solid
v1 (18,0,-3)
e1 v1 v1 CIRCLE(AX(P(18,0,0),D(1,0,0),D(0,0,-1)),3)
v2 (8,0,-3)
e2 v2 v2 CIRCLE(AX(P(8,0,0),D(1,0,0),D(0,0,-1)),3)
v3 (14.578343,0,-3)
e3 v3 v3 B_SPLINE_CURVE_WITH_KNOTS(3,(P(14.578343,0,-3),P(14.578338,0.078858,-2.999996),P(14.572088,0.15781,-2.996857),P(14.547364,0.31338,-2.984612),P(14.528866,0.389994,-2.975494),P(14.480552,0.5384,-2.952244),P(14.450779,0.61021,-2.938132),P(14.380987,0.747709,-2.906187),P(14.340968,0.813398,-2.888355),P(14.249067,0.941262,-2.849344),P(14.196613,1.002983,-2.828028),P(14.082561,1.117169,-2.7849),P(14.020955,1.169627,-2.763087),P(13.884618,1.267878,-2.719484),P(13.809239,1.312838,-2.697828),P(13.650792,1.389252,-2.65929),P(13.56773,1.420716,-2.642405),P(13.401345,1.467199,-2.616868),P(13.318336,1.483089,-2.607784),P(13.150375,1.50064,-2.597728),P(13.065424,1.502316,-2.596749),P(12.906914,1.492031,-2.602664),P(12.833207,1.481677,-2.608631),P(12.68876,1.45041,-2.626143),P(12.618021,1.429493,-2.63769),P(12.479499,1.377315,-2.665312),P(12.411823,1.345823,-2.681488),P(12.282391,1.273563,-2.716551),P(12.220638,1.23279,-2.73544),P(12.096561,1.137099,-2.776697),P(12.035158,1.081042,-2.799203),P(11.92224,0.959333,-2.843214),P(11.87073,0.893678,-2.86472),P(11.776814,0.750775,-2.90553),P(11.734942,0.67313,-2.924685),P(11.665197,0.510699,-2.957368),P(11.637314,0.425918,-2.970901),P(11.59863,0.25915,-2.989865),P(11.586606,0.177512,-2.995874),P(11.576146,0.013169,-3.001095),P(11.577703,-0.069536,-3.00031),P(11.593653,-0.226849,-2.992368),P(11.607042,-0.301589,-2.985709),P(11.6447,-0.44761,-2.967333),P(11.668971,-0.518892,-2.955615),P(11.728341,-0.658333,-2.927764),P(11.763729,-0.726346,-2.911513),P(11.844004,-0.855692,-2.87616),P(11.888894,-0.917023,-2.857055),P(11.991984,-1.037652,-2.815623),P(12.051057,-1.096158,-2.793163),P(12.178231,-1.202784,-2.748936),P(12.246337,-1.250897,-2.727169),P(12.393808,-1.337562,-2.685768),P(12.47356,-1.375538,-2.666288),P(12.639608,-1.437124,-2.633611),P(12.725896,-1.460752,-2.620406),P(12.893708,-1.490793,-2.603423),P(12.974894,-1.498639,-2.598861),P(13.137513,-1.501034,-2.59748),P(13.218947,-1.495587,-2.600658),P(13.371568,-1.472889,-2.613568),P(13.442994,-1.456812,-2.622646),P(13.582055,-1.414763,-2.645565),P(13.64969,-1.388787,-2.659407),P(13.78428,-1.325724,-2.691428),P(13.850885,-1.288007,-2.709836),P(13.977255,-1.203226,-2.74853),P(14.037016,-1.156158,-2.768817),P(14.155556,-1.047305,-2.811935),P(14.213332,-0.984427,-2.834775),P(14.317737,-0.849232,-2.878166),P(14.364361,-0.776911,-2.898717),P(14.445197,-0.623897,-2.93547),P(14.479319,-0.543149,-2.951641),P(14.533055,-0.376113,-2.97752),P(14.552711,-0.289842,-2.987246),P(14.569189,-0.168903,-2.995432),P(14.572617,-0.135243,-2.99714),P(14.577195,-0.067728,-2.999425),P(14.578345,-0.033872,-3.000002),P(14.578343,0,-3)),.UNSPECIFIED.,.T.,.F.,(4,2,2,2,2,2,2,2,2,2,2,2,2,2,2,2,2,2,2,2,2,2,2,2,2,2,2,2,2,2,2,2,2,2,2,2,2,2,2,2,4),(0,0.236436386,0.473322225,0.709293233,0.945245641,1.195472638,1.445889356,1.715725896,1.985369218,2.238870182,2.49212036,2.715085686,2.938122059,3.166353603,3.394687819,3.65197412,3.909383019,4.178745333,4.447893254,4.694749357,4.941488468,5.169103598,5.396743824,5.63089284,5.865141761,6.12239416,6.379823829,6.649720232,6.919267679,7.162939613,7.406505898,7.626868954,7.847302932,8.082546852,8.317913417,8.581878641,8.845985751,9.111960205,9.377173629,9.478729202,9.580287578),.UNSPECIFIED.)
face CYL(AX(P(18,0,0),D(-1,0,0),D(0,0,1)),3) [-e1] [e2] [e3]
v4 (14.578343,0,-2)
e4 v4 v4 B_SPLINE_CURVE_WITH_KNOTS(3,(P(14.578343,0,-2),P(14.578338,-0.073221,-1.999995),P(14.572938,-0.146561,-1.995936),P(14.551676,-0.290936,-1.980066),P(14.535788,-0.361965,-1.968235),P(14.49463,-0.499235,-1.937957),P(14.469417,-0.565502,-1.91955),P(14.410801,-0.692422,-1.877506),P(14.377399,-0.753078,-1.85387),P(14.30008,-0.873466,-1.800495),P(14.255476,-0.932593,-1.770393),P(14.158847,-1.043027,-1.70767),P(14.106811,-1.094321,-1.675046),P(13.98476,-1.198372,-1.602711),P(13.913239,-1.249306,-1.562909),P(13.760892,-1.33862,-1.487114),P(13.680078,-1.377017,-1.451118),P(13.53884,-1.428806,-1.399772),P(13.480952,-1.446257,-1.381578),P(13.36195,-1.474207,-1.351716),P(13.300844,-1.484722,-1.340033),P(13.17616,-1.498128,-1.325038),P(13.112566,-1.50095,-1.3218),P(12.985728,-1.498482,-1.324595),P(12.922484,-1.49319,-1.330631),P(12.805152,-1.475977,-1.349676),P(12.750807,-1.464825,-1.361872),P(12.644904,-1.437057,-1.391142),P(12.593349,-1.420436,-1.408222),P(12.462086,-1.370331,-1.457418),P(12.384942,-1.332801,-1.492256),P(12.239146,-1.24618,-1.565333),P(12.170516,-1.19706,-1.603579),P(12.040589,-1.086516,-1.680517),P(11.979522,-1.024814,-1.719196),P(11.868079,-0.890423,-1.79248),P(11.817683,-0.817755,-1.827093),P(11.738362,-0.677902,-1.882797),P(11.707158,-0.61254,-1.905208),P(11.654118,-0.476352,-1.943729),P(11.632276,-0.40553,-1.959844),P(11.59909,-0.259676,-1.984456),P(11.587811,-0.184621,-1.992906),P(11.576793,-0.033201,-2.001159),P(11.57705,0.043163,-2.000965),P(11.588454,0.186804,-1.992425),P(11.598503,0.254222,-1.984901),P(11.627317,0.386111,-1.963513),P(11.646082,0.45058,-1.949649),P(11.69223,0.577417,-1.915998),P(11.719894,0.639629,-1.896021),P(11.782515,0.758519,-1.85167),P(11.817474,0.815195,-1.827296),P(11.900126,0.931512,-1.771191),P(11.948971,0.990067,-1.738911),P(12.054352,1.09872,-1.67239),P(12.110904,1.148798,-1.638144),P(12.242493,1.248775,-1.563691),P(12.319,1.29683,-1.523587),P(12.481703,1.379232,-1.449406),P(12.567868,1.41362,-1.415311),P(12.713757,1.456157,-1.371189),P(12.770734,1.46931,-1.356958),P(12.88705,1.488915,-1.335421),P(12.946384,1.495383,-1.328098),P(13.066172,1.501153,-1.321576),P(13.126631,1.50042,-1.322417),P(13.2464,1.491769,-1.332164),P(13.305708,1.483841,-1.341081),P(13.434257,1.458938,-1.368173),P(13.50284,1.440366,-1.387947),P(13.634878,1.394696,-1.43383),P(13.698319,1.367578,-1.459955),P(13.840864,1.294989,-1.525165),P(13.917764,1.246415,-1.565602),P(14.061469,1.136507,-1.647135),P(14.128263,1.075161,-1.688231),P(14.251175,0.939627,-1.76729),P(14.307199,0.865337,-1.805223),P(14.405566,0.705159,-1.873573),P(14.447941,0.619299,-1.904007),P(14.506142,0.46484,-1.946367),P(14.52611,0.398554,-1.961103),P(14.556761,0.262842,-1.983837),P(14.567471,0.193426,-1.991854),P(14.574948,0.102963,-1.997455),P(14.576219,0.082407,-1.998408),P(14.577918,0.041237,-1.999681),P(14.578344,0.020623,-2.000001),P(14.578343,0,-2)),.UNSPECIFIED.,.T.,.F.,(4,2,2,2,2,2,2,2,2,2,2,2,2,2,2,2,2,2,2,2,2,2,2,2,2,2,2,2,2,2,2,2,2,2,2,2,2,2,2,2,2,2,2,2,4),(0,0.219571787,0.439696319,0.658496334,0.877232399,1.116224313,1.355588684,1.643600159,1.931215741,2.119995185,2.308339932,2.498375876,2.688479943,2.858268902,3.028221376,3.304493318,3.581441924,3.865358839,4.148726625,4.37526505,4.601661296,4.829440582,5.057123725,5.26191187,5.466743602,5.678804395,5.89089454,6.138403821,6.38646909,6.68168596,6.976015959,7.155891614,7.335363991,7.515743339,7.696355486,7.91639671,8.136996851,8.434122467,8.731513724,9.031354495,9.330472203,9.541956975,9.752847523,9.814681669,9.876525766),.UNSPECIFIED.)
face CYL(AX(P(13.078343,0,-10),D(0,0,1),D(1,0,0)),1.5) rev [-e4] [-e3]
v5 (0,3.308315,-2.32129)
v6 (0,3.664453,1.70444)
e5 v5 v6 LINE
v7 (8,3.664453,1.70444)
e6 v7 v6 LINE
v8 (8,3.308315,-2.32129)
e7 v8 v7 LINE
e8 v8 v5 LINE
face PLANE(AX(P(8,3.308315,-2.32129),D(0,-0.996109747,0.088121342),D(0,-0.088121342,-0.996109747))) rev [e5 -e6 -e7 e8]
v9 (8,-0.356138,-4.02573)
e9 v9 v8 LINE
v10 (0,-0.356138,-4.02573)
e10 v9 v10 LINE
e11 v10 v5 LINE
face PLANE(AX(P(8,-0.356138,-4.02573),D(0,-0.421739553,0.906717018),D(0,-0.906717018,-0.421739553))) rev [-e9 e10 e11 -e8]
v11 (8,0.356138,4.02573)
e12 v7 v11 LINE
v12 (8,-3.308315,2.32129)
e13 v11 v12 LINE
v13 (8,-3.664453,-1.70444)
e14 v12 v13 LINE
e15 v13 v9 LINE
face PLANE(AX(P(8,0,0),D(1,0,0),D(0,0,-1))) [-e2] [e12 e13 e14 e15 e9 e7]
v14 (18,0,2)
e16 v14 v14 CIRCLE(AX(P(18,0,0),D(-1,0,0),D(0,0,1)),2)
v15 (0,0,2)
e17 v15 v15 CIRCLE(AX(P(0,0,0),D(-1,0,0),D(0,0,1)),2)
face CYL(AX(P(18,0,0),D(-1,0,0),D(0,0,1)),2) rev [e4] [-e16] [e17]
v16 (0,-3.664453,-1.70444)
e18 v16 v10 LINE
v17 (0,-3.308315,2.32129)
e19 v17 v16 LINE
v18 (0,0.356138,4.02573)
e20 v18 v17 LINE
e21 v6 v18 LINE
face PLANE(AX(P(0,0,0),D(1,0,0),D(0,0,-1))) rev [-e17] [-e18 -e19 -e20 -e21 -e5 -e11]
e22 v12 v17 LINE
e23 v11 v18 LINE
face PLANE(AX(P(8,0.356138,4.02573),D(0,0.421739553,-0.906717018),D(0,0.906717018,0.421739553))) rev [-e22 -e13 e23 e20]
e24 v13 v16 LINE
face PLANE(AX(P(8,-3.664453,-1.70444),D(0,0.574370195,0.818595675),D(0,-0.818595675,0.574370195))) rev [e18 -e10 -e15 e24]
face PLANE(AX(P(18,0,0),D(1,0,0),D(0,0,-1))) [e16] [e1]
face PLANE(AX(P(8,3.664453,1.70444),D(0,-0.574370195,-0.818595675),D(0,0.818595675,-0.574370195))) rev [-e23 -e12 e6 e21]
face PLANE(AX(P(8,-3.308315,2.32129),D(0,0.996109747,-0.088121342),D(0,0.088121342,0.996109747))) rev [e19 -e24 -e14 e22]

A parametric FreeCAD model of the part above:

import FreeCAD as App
import Part
import Sketcher

V = App.Vector
Q = App.Units.Quantity


def add_polygon(sketch, points):
    """Adds a closed chain of lines whose ends are joined by coincident constraints."""
    first, n = sketch.GeometryCount, len(points)
    for a, b in zip(points, points[1:] + points[:1]):
        sketch.addGeometry(Part.LineSegment(App.Vector(*a, 0), App.Vector(*b, 0)), False)
    for i in range(n):
        sketch.addConstraint(Sketcher.Constraint("Coincident", first + i, 2, first + (i + 1) % n, 1))

doc = App.newDocument("Part")
params = doc.addObject("Spreadsheet::Sheet", "Params")
for row, (alias, value) in enumerate([
    ("pad1_length", "8 mm"),
    ("sketch2_diameter", "6 mm"),
    ("pad2_length", "10 mm"),
    ("sketch3_diameter", "4 mm"),
    ("sketch4_diameter", "3 mm"),
    ("pocket2_length", "10 mm"),
], start=1):
    params.set(f"A{row}", alias)
    params.set(f"B{row}", "=" + value)
    params.setAlias(f"B{row}", alias)

body = doc.addObject("PartDesign::Body", "Body")

sketch1 = body.newObject("Sketcher::SketchObject", "Sketch")
sketch1.AttachmentSupport = (doc.getObject("YZ_Plane"), [""])
sketch1.MapMode = "FlatFace"
add_polygon(sketch1, [(-3.7, -1.7), (-0.4, -4), (3.3, -2.3), (3.7, 1.7), (0.4, 4), (-3.3, 2.3)])
sketch1.addConstraint([
    Sketcher.Constraint("Symmetric", 0, 2, 3, 2, -1, 1),
    Sketcher.Constraint("Symmetric", 1, 2, 4, 2, -1, 1),
    Sketcher.Constraint("Symmetric", 2, 2, 5, 2, -1, 1),
    Sketcher.Constraint("Equal", 0, 1),
    Sketcher.Constraint("Equal", 1, 2),
    Sketcher.Constraint("Distance", 0, Q("4.041452 mm")),
    Sketcher.Constraint("DistanceX", 0, 2, -1, 1, Q("0.356138 mm")),
    Sketcher.Constraint("DistanceY", 0, 2, -1, 1, Q("4.02573 mm")),
    Sketcher.Constraint("DistanceY", 1, 2, -1, 1, Q("2.32129 mm")),
])
pad1 = body.newObject("PartDesign::Pad", "Pad")
pad1.Profile = sketch1
pad1.setExpression("Length", "Params.pad1_length")

sketch2 = body.newObject("Sketcher::SketchObject", "Sketch001")
sketch2.AttachmentSupport = (doc.getObject("YZ_Plane"), [""])
sketch2.MapMode = "FlatFace"
sketch2.AttachmentOffset = App.Placement(V(0, 0, 8), App.Rotation())
sketch2.addGeometry(Part.Circle(V(0, 0, 0), V(0, 0, 1), 3), False)
sketch2.addConstraint([
    Sketcher.Constraint("Coincident", 0, 3, -1, 1),
    Sketcher.Constraint("Diameter", 0, Q("6 mm")),
])
sketch2.setExpression("Constraints[1]", "Params.sketch2_diameter")
pad2 = body.newObject("PartDesign::Pad", "Pad001")
pad2.Profile = sketch2
pad2.setExpression("Length", "Params.pad2_length")

sketch3 = body.newObject("Sketcher::SketchObject", "Sketch002")
sketch3.AttachmentSupport = (doc.getObject("YZ_Plane"), [""])
sketch3.MapMode = "FlatFace"
sketch3.addGeometry(Part.Circle(V(0, 0, 0), V(0, 0, 1), 2), False)
sketch3.addConstraint([
    Sketcher.Constraint("Coincident", 0, 3, -1, 1),
    Sketcher.Constraint("Diameter", 0, Q("4 mm")),
])
sketch3.setExpression("Constraints[1]", "Params.sketch3_diameter")
pocket1 = body.newObject("PartDesign::Pocket", "Pocket")
pocket1.Profile = sketch3
pocket1.Type = "ThroughAll"
pocket1.Reversed = True

sketch4 = body.newObject("Sketcher::SketchObject", "Sketch003")
sketch4.AttachmentSupport = (doc.getObject("XY_Plane"), [""])
sketch4.MapMode = "FlatFace"
sketch4.addGeometry(Part.Circle(V(13.1, 0, 0), V(0, 0, 1), 1.5), False)
sketch4.addConstraint([
    Sketcher.Constraint("PointOnObject", 0, 3, -1),
    Sketcher.Constraint("Diameter", 0, Q("3 mm")),
    Sketcher.Constraint("DistanceX", -1, 1, 0, 3, Q("13.078343 mm")),
])
sketch4.setExpression("Constraints[1]", "Params.sketch4_diameter")
pocket2 = body.newObject("PartDesign::Pocket", "Pocket001")
pocket2.Profile = sketch4
pocket2.setExpression("Length", "Params.pocket2_length")

doc.recompute()
